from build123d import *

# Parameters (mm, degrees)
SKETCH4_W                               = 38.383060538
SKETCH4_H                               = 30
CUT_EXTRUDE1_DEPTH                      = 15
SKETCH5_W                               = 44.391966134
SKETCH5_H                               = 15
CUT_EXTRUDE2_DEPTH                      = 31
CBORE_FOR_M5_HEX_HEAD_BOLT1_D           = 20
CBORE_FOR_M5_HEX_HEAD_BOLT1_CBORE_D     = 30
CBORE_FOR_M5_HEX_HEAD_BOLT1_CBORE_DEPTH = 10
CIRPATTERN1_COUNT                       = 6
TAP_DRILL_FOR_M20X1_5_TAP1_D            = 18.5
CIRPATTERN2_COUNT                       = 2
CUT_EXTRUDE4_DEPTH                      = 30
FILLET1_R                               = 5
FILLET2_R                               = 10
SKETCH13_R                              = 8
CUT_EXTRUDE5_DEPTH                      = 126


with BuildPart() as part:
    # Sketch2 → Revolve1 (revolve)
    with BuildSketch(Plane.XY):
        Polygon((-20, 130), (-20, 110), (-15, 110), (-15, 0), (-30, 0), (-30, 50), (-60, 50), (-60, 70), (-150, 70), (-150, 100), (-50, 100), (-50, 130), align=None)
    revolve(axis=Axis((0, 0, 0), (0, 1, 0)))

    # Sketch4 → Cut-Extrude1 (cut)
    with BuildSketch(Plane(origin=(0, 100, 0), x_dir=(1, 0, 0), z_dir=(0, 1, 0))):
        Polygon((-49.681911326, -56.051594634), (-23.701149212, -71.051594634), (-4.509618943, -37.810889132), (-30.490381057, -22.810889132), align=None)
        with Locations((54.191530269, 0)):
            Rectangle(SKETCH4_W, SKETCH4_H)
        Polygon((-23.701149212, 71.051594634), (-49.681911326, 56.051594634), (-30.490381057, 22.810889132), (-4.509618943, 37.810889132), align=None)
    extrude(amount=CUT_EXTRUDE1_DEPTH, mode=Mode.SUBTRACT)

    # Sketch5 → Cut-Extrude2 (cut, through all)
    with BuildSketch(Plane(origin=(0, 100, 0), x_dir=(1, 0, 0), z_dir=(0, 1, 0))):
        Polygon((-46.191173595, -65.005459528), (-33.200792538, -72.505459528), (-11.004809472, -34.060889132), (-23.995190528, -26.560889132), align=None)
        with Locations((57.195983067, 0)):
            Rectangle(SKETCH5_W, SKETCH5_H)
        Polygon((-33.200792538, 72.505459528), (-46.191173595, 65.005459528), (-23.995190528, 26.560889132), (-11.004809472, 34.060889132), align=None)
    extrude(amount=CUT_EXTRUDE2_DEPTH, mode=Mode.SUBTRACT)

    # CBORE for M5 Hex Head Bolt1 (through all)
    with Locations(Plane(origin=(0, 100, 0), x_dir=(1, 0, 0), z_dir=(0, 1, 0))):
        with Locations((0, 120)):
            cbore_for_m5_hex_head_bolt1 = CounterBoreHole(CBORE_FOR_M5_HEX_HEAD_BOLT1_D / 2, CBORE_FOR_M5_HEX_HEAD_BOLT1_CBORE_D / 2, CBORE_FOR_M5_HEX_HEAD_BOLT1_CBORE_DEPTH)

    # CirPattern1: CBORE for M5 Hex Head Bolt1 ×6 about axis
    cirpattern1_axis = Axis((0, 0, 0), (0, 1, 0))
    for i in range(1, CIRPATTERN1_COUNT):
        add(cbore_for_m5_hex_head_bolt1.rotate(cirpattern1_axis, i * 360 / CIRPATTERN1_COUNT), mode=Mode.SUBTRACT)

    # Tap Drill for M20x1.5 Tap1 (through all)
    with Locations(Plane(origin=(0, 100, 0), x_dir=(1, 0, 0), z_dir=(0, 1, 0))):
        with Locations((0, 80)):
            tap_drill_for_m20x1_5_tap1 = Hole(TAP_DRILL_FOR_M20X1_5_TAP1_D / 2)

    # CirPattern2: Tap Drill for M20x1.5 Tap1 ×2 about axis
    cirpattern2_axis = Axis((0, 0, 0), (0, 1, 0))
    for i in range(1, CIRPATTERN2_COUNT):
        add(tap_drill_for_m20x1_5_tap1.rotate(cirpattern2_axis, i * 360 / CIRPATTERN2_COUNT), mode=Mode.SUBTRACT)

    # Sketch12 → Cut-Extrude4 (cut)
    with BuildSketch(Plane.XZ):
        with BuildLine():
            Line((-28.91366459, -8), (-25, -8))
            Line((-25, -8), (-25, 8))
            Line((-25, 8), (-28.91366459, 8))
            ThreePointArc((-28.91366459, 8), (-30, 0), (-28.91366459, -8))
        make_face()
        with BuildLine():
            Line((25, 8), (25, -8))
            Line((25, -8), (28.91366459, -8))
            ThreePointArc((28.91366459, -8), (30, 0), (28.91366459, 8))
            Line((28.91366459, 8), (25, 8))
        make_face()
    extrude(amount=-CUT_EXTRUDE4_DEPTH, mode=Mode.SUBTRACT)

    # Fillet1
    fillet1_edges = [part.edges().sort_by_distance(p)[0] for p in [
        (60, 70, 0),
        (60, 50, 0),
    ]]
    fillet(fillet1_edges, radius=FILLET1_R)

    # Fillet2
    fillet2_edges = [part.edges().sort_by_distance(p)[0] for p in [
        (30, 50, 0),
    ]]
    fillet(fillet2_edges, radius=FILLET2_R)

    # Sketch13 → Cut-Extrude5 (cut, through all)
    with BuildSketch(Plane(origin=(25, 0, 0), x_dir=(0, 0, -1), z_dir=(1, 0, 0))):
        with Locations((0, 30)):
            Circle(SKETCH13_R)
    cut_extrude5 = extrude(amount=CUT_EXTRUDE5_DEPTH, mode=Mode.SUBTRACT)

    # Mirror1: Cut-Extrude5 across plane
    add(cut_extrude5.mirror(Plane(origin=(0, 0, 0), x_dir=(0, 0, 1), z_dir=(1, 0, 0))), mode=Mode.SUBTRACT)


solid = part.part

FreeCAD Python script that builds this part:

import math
import FreeCAD as App
import Part
import Sketcher
from FreeCAD import Vector
Q = App.Units.Quantity


def edges_at(feature, points):
    """Names of the edges that pass closest to the given points."""
    edges = feature.Shape.Edges
    near = lambda p: min(range(len(edges)), key=lambda i: edges[i].distToShape(Part.Vertex(*p))[0])
    return sorted({f"Edge{near(p) + 1}" for p in points})


def add_polygon(sketch, points):
    """Adds a closed chain of lines whose ends are joined by coincident constraints."""
    first, n = sketch.GeometryCount, len(points)
    for a, b in zip(points, points[1:] + points[:1]):
        sketch.addGeometry(Part.LineSegment(App.Vector(*a, 0), App.Vector(*b, 0)), False)
    for i in range(n):
        sketch.addConstraint(Sketcher.Constraint("Coincident", first + i, 2, first + (i + 1) % n, 1))

doc = App.newDocument("Part")
body = doc.addObject("PartDesign::Body", "Body")

# Sketch on XY plane
sketch1 = doc.addObject("Sketcher::SketchObject", "Sketch")
body.addObject(sketch1)
sketch1.AttachmentSupport = (doc.XY_Plane, [""])
sketch1.MapMode = "FlatFace"
add_polygon(sketch1, [(-20, 110), (-20, 130), (-50, 130), (-50, 100), (-150, 100), (-150, 70), (-60, 70), (-60, 50), (-30, 50), (-30, 0), (-15, 0), (-15, 110)])  # lines 0-11
sketch1.addConstraint(Sketcher.Constraint("Vertical", 0))
sketch1.addConstraint(Sketcher.Constraint("Horizontal", 1))
sketch1.addConstraint(Sketcher.Constraint("Vertical", 2))
sketch1.addConstraint(Sketcher.Constraint("Horizontal", 3))
sketch1.addConstraint(Sketcher.Constraint("Vertical", 4))
sketch1.addConstraint(Sketcher.Constraint("Horizontal", 5))
sketch1.addConstraint(Sketcher.Constraint("Vertical", 6))
sketch1.addConstraint(Sketcher.Constraint("Horizontal", 7))
sketch1.addConstraint(Sketcher.Constraint("Vertical", 8))
sketch1.addConstraint(Sketcher.Constraint("Horizontal", 9))
sketch1.addConstraint(Sketcher.Constraint("Vertical", 10))
sketch1.addConstraint(Sketcher.Constraint("Horizontal", 11))
sketch1.addConstraint(Sketcher.Constraint("PointOnObject", 8, 2, -1))
sketch1.addConstraint(Sketcher.Constraint("Equal", 1, 7))
sketch1.addConstraint(Sketcher.Constraint("Equal", 7, 2))
sketch1.addConstraint(Sketcher.Constraint("Equal", 2, 4))
sketch1.addConstraint(Sketcher.Constraint("Equal", 0, 6))
sketch1.addConstraint(Sketcher.Constraint("DistanceX", 1, 2, 1, 1, Q("30 mm")))
sketch1.addConstraint(Sketcher.Constraint("DistanceX", 3, 2, 3, 1, Q("100 mm")))
sketch1.addConstraint(Sketcher.Constraint("DistanceX", 5, 1, 5, 2, Q("90 mm")))
sketch1.addConstraint(Sketcher.Constraint("DistanceX", 9, 1, 9, 2, Q("15 mm")))
sketch1.addConstraint(Sketcher.Constraint("DistanceY", 0, 1, 0, 2, Q("20 mm")))
sketch1.addConstraint(Sketcher.Constraint("DistanceY", 8, 2, 8, 1, Q("50 mm")))
sketch1.addConstraint(Sketcher.Constraint("DistanceX", 0, 2, -1, 1, Q("20 mm")))
revolution = doc.addObject("PartDesign::Revolution", "Revolution")
body.addObject(revolution)
revolution.Profile = sketch1
revolution.ReferenceAxis = (sketch1, ["V_Axis"])
revolution.Angle = 360

# Sketch on XZ plane
sketch2 = doc.addObject("Sketcher::SketchObject", "Sketch001")
body.addObject(sketch2)
sketch2.AttachmentSupport = (doc.XZ_Plane, [""])
sketch2.MapMode = "FlatFace"
sketch2.AttachmentOffset = App.Placement(Vector(0, 0, -100), App.Rotation())
add_polygon(sketch2, [(-50, 56), (-24, 71), (-5, 38), (-30, 23)])  # lines 0-3
add_polygon(sketch2, [(35, -15), (35, 15), (73, 15), (73, -15)])  # lines 4-7
add_polygon(sketch2, [(-24, -71), (-50, -56), (-30, -23), (-5, -38)])  # lines 8-11
sketch2.addConstraint(Sketcher.Constraint("Vertical", 4))
sketch2.addConstraint(Sketcher.Constraint("Horizontal", 5))
sketch2.addConstraint(Sketcher.Constraint("Vertical", 6))
sketch2.addConstraint(Sketcher.Constraint("Horizontal", 7))
sketch2.addConstraint(Sketcher.Constraint("Symmetric", 3, 2, 8, 2, -1))
sketch2.addConstraint(Sketcher.Constraint("Symmetric", 2, 2, 9, 2, -1))
sketch2.addConstraint(Sketcher.Constraint("Symmetric", 1, 2, 10, 2, -1))
sketch2.addConstraint(Sketcher.Constraint("Symmetric", 0, 2, 11, 2, -1))
sketch2.addConstraint(Sketcher.Constraint("Perpendicular", 0, 1))
sketch2.addConstraint(Sketcher.Constraint("Perpendicular", 1, 2))
sketch2.addConstraint(Sketcher.Constraint("Perpendicular", 2, 3))
sketch2.addConstraint(Sketcher.Constraint("DistanceY", 4, 1, 4, 2, Q("30 mm")))
sketch2.addConstraint(Sketcher.Constraint("Angle", 0, Q("30 deg")))
sketch2.addConstraint(Sketcher.Constraint("Distance", 0, Q("30 mm")))
sketch2.addConstraint(Sketcher.Constraint("DistanceX", -1, 1, 4, 2, Q("35 mm")))
sketch2.addConstraint(Sketcher.Constraint("DistanceY", -1, 1, 4, 2, Q("15 mm")))
sketch2.addConstraint(Sketcher.Constraint("DistanceX", 5, 1, 5, 2, Q("38.383061 mm")))
sketch2.addConstraint(Sketcher.Constraint("Distance", 1, Q("38.383061 mm")))
sketch2.addConstraint(Sketcher.Constraint("DistanceX", 0, 2, -1, 1, Q("23.701149 mm")))
sketch2.addConstraint(Sketcher.Constraint("DistanceY", -1, 1, 1, 2, Q("37.810889 mm")))
pocket1 = doc.addObject("PartDesign::Pocket", "Pocket")
body.addObject(pocket1)
pocket1.Profile = sketch2
pocket1.Length = 15

# Sketch on XZ plane
sketch3 = doc.addObject("Sketcher::SketchObject", "Sketch002")
body.addObject(sketch3)
sketch3.AttachmentSupport = (doc.XZ_Plane, [""])
sketch3.MapMode = "FlatFace"
sketch3.AttachmentOffset = App.Placement(Vector(0, 0, -100), App.Rotation())
add_polygon(sketch3, [(-46, 65), (-33, 73), (-11, 34), (-24, 27)])  # lines 0-3
add_polygon(sketch3, [(35, -8), (35, 8), (79, 8), (79, -8)])  # lines 4-7
add_polygon(sketch3, [(-33, -73), (-46, -65), (-24, -27), (-11, -34)])  # lines 8-11
sketch3.addConstraint(Sketcher.Constraint("Vertical", 4))
sketch3.addConstraint(Sketcher.Constraint("Horizontal", 5))
sketch3.addConstraint(Sketcher.Constraint("Vertical", 6))
sketch3.addConstraint(Sketcher.Constraint("Horizontal", 7))
sketch3.addConstraint(Sketcher.Constraint("Symmetric", 3, 2, 8, 2, -1))
sketch3.addConstraint(Sketcher.Constraint("Symmetric", 2, 2, 9, 2, -1))
sketch3.addConstraint(Sketcher.Constraint("Symmetric", 1, 2, 10, 2, -1))
sketch3.addConstraint(Sketcher.Constraint("Symmetric", 0, 2, 11, 2, -1))
sketch3.addConstraint(Sketcher.Constraint("Perpendicular", 0, 1))
sketch3.addConstraint(Sketcher.Constraint("Perpendicular", 1, 2))
sketch3.addConstraint(Sketcher.Constraint("Perpendicular", 2, 3))
sketch3.addConstraint(Sketcher.Constraint("DistanceY", 4, 1, 4, 2, Q("15 mm")))
sketch3.addConstraint(Sketcher.Constraint("Angle", 0, Q("30 deg")))
sketch3.addConstraint(Sketcher.Constraint("Distance", 0, Q("15 mm")))
sketch3.addConstraint(Sketcher.Constraint("DistanceX", -1, 1, 4, 2, Q("35 mm")))
sketch3.addConstraint(Sketcher.Constraint("DistanceY", -1, 1, 4, 2, Q("7.5 mm")))
sketch3.addConstraint(Sketcher.Constraint("DistanceX", 5, 1, 5, 2, Q("44.391966 mm")))
sketch3.addConstraint(Sketcher.Constraint("DistanceY", -1, 1, 0, 2, Q("72.50546 mm")))
sketch3.addConstraint(Sketcher.Constraint("DistanceX", 1, 2, -1, 1, Q("11.004809 mm")))
sketch3.addConstraint(Sketcher.Constraint("DistanceY", -1, 1, 1, 2, Q("34.060889 mm")))
pocket2 = doc.addObject("PartDesign::Pocket", "Pocket001")
body.addObject(pocket2)
pocket2.Profile = sketch3
pocket2.Type = "ThroughAll"

# Sketch on XZ plane
sketch4 = doc.addObject("Sketcher::SketchObject", "Sketch003")
body.addObject(sketch4)
sketch4.AttachmentSupport = (doc.XZ_Plane, [""])
sketch4.MapMode = "FlatFace"
sketch4.AttachmentOffset = App.Placement(Vector(0, 0, -100), App.Rotation())
sketch4.addGeometry(Part.Circle(Vector(0, -120, 0), Vector(0, 0, 1), 10), False)
sketch4.addConstraint(Sketcher.Constraint("PointOnObject", 0, 3, -2))
sketch4.addConstraint(Sketcher.Constraint("Diameter", 0, Q("20 mm")))
sketch4.addConstraint(Sketcher.Constraint("DistanceY", 0, 3, -1, 1, Q("120 mm")))
doc.recompute()
hole = doc.addObject("PartDesign::Hole", "Hole")
body.addObject(hole)
hole.Profile = sketch4
hole.ThreadType = "None"
hole.Diameter = 20
hole.DepthType = "ThroughAll"
hole.HoleCutType = "Counterbore"
hole.HoleCutDiameter = 30
hole.HoleCutDepth = 10
hole.Reversed = True
doc.recompute()

polarpattern = doc.addObject("PartDesign::PolarPattern", "PolarPattern")
body.addObject(polarpattern)
polarpattern.Originals = [hole]
polarpattern.Axis = (doc.Y_Axis, [""])
polarpattern.Angle = 360
polarpattern.Occurrences = 6
body.Tip = polarpattern

# Sketch on XZ plane
sketch5 = doc.addObject("Sketcher::SketchObject", "Sketch004")
body.addObject(sketch5)
sketch5.AttachmentSupport = (doc.XZ_Plane, [""])
sketch5.MapMode = "FlatFace"
sketch5.AttachmentOffset = App.Placement(Vector(0, 0, -100), App.Rotation())
sketch5.addGeometry(Part.Circle(Vector(0, -80, 0), Vector(0, 0, 1), 9), False)
sketch5.addConstraint(Sketcher.Constraint("PointOnObject", 0, 3, -2))
sketch5.addConstraint(Sketcher.Constraint("Diameter", 0, Q("18.5 mm")))
sketch5.addConstraint(Sketcher.Constraint("DistanceY", 0, 3, -1, 1, Q("80 mm")))
doc.recompute()
hole2 = doc.addObject("PartDesign::Hole", "Hole001")
body.addObject(hole2)
hole2.Profile = sketch5
hole2.ThreadType = "None"
hole2.Diameter = 18.5
hole2.DepthType = "ThroughAll"
hole2.Reversed = True
doc.recompute()

polarpattern2 = doc.addObject("PartDesign::PolarPattern", "PolarPattern001")
body.addObject(polarpattern2)
polarpattern2.Originals = [hole2]
polarpattern2.Axis = (doc.Y_Axis, [""])
polarpattern2.Angle = 360
polarpattern2.Occurrences = 2
body.Tip = polarpattern2

# Sketch on XZ plane
sketch6 = doc.addObject("Sketcher::SketchObject", "Sketch005")
body.addObject(sketch6)
sketch6.AttachmentSupport = (doc.XZ_Plane, [""])
sketch6.MapMode = "FlatFace"
sketch6.addGeometry(Part.LineSegment(Vector(-28.9, -8, 0), Vector(-25, -8, 0)), False)
sketch6.addGeometry(Part.LineSegment(Vector(-25, -8, 0), Vector(-25, 8, 0)), False)
sketch6.addGeometry(Part.LineSegment(Vector(-25, 8, 0), Vector(-28.9, 8, 0)), False)
sketch6.addGeometry(Part.ArcOfCircle(Part.Circle(Vector(0, 0, 0), Vector(0, 0, 1), 30), math.radians(165), math.radians(195)), False)
sketch6.addGeometry(Part.LineSegment(Vector(25, 8, 0), Vector(25, -8, 0)), False)
sketch6.addGeometry(Part.LineSegment(Vector(25, -8, 0), Vector(28.9, -8, 0)), False)
sketch6.addGeometry(Part.ArcOfCircle(Part.Circle(Vector(0, 0, 0), Vector(0, 0, 1), 30), math.radians(-15), math.radians(15)), False)
sketch6.addGeometry(Part.LineSegment(Vector(28.9, 8, 0), Vector(25, 8, 0)), False)
sketch6.addConstraint(Sketcher.Constraint("Coincident", 0, 2, 1, 1))
sketch6.addConstraint(Sketcher.Constraint("Coincident", 1, 2, 2, 1))
sketch6.addConstraint(Sketcher.Constraint("Coincident", 2, 2, 3, 1))
sketch6.addConstraint(Sketcher.Constraint("Coincident", 3, 2, 0, 1))
sketch6.addConstraint(Sketcher.Constraint("Coincident", 4, 2, 5, 1))
sketch6.addConstraint(Sketcher.Constraint("Coincident", 5, 2, 6, 1))
sketch6.addConstraint(Sketcher.Constraint("Coincident", 6, 2, 7, 1))
sketch6.addConstraint(Sketcher.Constraint("Coincident", 7, 2, 4, 1))
sketch6.addConstraint(Sketcher.Constraint("Horizontal", 0))
sketch6.addConstraint(Sketcher.Constraint("Vertical", 1))
sketch6.addConstraint(Sketcher.Constraint("Horizontal", 2))
sketch6.addConstraint(Sketcher.Constraint("Vertical", 4))
sketch6.addConstraint(Sketcher.Constraint("Horizontal", 5))
sketch6.addConstraint(Sketcher.Constraint("Horizontal", 7))
sketch6.addConstraint(Sketcher.Constraint("Coincident", 3, 3, -1, 1))
sketch6.addConstraint(Sketcher.Constraint("Coincident", 6, 3, -1, 1))
sketch6.addConstraint(Sketcher.Constraint("Equal", 3, 6))
sketch6.addConstraint(Sketcher.Constraint("Symmetric", 1, 2, 4, 2, -1, 1))
sketch6.addConstraint(Sketcher.Constraint("Horizontal", 3, 2, 4, 2))
sketch6.addConstraint(Sketcher.Constraint("Horizontal", 2, 2, 6, 2))
sketch6.addConstraint(Sketcher.Constraint("Radius", 3, Q("30 mm")))
sketch6.addConstraint(Sketcher.Constraint("DistanceY", 1, 1, 1, 2, Q("16 mm")))
sketch6.addConstraint(Sketcher.Constraint("DistanceX", 0, 2, -1, 1, Q("25 mm")))
pocket3 = doc.addObject("PartDesign::Pocket", "Pocket002")
body.addObject(pocket3)
pocket3.Profile = sketch6
pocket3.Length = 30
doc.recompute()

fillet = doc.addObject("PartDesign::Fillet", "Fillet")
body.addObject(fillet)
fillet.Base = (pocket3, edges_at(pocket3, [(60, 70, 0), (60, 50, 0)]))
fillet.Radius = 5
doc.recompute()

fillet2 = doc.addObject("PartDesign::Fillet", "Fillet001")
body.addObject(fillet2)
fillet2.Base = (fillet, edges_at(fillet, [(30, 50, 0)]))
fillet2.Radius = 10

# Sketch on YZ plane
sketch7 = doc.addObject("Sketcher::SketchObject", "Sketch006")
body.addObject(sketch7)
sketch7.AttachmentSupport = (doc.YZ_Plane, [""])
sketch7.MapMode = "FlatFace"
sketch7.AttachmentOffset = App.Placement(Vector(0, 0, 25), App.Rotation())
sketch7.addGeometry(Part.Circle(Vector(30, 0, 0), Vector(0, 0, 1), 8), False)
sketch7.addConstraint(Sketcher.Constraint("PointOnObject", 0, 3, -1))
sketch7.addConstraint(Sketcher.Constraint("Diameter", 0, Q("16 mm")))
sketch7.addConstraint(Sketcher.Constraint("DistanceX", -1, 1, 0, 3, Q("30 mm")))
pocket4 = doc.addObject("PartDesign::Pocket", "Pocket003")
body.addObject(pocket4)
pocket4.Profile = sketch7
pocket4.Type = "ThroughAll"
pocket4.Reversed = True
doc.recompute()

mirrored = doc.addObject("PartDesign::Mirrored", "Mirrored")
body.addObject(mirrored)
mirrored.Originals = [pocket4]
mirrored.MirrorPlane = (doc.YZ_Plane, [""])
body.Tip = mirrored

doc.recompute()
